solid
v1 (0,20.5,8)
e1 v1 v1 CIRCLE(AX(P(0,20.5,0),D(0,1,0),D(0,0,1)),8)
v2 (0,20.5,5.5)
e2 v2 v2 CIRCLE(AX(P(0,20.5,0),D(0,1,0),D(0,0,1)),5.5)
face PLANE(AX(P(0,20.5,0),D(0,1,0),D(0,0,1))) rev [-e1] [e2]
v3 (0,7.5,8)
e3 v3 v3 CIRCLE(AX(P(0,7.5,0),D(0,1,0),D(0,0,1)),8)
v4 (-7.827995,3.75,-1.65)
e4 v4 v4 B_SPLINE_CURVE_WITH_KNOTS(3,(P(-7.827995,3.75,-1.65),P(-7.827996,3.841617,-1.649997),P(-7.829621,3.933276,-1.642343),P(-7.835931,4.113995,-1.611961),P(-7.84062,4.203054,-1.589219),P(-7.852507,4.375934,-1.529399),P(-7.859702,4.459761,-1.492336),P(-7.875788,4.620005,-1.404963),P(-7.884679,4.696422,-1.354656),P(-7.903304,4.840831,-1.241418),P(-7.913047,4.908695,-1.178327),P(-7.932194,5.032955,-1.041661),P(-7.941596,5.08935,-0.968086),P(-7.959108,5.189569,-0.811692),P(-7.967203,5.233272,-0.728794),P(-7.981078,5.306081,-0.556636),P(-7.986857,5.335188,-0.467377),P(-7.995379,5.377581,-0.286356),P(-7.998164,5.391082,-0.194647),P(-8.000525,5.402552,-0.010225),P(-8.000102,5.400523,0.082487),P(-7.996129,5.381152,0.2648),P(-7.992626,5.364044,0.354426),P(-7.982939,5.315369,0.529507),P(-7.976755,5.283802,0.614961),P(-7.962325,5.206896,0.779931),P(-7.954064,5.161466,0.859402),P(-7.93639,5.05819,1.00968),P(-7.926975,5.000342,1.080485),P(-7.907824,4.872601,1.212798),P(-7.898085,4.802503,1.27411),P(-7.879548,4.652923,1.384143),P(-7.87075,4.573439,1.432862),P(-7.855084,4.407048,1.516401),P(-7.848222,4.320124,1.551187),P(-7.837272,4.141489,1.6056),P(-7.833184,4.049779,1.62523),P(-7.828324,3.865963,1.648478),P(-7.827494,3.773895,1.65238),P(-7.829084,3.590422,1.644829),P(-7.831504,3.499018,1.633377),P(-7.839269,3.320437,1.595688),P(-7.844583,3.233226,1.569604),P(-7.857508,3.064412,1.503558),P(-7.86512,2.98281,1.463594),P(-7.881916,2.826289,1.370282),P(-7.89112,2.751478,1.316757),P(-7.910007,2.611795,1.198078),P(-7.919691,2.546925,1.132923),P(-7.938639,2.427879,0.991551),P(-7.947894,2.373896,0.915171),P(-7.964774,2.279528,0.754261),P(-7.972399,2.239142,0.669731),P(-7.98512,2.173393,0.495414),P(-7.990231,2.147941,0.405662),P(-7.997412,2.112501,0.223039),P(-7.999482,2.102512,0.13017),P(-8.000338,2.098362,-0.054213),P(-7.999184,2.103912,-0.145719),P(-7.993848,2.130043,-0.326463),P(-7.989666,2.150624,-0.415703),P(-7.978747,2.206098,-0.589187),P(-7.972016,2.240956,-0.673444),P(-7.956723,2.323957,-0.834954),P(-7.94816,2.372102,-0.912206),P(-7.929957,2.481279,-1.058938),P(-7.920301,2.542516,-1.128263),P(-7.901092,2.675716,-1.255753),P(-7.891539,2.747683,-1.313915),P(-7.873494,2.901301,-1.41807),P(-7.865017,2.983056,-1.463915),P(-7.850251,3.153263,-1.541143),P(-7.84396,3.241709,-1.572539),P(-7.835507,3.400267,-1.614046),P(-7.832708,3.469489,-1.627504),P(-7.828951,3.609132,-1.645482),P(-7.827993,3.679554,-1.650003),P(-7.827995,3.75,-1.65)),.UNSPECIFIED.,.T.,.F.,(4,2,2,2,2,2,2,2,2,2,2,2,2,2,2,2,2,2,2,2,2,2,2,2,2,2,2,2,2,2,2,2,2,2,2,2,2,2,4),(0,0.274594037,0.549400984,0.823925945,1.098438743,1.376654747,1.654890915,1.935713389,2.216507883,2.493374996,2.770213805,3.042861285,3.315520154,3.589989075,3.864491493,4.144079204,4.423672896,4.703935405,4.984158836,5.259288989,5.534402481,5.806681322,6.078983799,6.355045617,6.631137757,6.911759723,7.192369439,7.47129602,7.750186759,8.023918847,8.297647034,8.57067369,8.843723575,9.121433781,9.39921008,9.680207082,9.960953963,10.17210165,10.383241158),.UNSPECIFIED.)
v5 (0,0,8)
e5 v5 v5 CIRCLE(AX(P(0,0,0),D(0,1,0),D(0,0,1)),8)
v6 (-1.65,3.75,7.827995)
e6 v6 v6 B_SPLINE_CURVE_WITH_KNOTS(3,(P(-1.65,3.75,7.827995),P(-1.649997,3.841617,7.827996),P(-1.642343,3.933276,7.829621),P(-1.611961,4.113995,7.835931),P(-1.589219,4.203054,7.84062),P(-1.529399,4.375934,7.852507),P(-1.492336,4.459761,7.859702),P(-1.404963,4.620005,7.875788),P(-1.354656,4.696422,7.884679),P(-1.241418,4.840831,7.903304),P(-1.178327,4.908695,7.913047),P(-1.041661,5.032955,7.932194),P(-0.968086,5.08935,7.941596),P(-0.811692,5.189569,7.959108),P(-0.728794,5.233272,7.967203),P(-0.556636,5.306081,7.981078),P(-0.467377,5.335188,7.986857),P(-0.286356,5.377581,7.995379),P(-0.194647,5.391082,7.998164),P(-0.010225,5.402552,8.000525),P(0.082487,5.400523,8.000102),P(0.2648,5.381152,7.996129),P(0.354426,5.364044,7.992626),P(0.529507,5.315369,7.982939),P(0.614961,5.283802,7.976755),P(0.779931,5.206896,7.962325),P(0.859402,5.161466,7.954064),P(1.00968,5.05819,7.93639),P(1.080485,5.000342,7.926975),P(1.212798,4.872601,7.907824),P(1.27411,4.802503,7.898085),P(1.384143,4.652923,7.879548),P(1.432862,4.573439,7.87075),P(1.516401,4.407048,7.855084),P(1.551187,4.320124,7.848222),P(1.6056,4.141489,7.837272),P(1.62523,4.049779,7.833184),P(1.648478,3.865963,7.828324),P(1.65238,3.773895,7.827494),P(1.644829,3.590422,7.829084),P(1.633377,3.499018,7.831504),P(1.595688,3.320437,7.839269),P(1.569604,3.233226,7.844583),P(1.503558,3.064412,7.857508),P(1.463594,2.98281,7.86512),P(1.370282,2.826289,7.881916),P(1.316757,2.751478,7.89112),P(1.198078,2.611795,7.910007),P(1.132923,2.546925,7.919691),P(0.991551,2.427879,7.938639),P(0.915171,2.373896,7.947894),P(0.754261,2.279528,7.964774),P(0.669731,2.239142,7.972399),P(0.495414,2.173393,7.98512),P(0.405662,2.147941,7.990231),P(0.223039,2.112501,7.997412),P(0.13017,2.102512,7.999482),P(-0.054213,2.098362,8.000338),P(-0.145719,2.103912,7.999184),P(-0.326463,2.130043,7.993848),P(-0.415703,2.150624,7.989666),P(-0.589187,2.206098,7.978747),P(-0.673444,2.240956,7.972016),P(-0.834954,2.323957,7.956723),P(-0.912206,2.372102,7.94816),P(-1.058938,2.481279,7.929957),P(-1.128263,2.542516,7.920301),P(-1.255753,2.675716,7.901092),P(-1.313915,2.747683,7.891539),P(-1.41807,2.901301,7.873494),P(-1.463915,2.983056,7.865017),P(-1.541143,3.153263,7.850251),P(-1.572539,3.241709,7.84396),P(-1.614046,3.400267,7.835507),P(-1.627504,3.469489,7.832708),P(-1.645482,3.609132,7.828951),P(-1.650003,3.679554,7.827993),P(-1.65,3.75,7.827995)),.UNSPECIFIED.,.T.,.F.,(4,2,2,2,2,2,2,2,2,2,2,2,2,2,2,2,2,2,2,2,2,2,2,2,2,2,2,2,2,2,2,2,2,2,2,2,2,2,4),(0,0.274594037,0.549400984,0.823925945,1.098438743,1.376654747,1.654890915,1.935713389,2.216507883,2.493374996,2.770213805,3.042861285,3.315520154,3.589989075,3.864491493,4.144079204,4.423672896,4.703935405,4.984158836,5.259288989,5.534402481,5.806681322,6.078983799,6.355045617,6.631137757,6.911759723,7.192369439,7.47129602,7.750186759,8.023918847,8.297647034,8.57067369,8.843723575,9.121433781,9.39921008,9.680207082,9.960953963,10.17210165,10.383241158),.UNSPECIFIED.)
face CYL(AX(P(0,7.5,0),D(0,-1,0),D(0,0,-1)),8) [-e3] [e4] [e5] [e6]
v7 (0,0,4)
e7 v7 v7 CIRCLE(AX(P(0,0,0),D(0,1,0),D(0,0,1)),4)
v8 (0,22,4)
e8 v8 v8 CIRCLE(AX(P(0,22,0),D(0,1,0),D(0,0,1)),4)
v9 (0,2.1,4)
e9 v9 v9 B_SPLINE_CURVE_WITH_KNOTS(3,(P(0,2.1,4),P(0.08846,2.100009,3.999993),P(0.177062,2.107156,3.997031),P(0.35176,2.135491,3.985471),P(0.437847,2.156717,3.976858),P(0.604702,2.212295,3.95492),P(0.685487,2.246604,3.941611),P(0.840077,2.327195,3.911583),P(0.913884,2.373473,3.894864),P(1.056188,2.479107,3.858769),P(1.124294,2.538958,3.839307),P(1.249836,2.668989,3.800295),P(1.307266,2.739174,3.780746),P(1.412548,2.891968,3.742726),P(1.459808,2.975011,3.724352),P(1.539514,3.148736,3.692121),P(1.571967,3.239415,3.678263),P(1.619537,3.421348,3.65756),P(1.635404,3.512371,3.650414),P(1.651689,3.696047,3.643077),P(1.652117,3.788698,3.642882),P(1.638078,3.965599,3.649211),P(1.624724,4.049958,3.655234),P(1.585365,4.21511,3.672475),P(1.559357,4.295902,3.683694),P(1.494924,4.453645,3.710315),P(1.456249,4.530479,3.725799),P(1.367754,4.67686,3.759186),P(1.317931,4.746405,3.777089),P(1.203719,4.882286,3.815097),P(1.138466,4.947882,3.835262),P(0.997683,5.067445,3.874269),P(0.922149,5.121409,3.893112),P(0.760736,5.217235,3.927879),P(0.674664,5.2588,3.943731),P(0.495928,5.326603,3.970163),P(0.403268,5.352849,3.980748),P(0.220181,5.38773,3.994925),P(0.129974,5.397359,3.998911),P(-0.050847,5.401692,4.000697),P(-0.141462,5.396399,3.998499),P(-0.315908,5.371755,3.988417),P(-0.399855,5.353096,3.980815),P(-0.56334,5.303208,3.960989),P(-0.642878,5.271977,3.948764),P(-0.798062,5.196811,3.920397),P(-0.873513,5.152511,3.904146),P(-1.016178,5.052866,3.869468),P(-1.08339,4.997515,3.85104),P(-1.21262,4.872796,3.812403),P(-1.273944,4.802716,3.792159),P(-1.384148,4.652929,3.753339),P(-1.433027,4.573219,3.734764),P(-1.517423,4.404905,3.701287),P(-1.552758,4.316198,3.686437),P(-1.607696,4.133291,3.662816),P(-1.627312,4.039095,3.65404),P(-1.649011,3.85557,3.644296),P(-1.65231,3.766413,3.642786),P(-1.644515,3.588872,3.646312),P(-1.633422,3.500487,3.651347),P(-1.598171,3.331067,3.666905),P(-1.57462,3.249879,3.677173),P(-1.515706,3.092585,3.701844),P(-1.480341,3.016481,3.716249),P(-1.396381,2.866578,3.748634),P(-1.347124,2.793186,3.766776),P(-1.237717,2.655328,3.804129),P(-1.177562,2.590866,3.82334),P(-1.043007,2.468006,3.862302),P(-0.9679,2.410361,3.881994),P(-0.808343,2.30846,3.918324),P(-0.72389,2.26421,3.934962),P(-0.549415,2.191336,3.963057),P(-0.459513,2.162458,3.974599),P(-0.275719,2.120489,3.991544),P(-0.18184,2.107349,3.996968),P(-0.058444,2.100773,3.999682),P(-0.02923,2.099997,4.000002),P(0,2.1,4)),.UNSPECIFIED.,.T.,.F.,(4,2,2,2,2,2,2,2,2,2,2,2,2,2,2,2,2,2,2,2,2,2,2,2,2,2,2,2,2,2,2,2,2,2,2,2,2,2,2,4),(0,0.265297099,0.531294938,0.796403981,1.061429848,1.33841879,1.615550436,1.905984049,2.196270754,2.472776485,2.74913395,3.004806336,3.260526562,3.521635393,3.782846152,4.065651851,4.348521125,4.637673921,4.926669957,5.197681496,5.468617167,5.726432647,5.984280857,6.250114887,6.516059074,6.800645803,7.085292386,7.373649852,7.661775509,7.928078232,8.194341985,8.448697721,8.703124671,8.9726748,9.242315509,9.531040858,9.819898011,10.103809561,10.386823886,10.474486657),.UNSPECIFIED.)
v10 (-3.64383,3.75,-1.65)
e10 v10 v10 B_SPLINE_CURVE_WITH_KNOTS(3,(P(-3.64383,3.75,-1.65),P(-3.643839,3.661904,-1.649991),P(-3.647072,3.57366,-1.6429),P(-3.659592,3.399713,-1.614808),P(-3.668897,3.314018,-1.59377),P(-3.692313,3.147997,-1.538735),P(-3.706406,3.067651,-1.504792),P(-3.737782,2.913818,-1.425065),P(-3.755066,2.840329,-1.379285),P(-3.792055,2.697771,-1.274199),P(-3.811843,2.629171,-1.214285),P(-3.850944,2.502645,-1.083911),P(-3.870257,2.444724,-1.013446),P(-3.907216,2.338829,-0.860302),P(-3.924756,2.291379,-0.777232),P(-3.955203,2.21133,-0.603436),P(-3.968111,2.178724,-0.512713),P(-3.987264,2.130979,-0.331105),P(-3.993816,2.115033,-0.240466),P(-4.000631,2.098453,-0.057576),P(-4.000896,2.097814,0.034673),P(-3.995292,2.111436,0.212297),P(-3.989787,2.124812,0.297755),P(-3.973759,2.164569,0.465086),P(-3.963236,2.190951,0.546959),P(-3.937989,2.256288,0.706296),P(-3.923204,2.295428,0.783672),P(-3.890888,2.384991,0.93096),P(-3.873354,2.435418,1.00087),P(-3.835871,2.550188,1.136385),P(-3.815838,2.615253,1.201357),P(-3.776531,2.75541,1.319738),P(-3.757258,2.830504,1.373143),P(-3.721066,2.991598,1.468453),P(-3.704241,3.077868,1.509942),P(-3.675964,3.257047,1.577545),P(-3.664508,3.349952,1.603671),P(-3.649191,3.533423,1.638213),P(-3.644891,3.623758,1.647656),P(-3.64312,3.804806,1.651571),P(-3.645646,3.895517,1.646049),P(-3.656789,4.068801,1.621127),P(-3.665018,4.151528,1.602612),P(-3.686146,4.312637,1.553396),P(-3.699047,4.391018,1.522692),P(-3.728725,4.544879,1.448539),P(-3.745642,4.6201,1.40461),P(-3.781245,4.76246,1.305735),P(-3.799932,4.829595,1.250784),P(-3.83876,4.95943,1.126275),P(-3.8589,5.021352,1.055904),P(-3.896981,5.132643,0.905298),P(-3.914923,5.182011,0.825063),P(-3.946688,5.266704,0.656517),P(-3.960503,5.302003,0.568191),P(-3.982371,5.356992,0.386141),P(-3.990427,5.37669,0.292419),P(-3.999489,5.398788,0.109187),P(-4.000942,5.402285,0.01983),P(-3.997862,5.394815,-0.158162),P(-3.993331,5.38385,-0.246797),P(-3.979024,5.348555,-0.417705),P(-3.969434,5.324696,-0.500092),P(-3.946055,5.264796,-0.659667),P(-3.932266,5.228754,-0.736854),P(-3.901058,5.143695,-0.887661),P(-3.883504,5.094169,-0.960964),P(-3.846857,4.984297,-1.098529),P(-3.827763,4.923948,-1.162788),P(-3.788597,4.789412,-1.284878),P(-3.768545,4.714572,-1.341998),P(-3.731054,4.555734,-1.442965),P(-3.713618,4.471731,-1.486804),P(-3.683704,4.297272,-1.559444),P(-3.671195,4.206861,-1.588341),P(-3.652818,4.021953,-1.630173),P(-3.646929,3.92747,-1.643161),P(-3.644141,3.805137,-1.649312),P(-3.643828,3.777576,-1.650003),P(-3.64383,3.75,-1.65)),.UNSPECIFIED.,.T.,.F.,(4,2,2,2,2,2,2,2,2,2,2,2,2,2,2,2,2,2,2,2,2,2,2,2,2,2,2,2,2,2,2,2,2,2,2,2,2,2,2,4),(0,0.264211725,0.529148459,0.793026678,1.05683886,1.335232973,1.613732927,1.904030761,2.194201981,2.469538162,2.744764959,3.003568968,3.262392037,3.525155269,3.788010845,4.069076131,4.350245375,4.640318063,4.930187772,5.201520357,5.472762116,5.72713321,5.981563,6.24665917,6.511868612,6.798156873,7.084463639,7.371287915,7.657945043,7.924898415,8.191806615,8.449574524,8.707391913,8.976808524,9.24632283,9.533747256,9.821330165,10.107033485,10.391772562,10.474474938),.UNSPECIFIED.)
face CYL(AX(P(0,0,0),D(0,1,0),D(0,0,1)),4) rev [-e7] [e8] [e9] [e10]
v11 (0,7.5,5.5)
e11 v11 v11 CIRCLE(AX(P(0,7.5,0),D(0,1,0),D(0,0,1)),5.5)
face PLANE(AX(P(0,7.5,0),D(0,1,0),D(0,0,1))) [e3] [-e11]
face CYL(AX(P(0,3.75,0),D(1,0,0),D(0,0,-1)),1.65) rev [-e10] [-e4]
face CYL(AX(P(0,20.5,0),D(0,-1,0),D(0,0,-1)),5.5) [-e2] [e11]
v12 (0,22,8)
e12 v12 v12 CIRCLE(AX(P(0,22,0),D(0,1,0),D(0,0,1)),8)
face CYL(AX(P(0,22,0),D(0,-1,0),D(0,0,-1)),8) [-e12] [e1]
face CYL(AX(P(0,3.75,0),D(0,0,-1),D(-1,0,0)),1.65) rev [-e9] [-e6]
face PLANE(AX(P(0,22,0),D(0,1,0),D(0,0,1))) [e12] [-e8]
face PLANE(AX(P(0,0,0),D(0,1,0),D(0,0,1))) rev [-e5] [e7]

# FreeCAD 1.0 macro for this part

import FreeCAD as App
import Part
import Sketcher
from FreeCAD import Vector

doc = App.newDocument("Part")
body = doc.addObject("PartDesign::Body", "Body")

# Sketch on XZ plane
sketch1 = doc.addObject("Sketcher::SketchObject", "Sketch")
body.addObject(sketch1)
sketch1.AttachmentSupport = (doc.XZ_Plane, [""])
sketch1.MapMode = "FlatFace"
sketch1.addGeometry(Part.Circle(Vector(0, 0, 0), Vector(0, 0, 1), 8), False)
sketch1.addConstraint([
    Sketcher.Constraint("Coincident", 0, 3, -1, 1),
    Sketcher.Constraint("Diameter", 0, 16.0),
])
pad1 = doc.addObject("PartDesign::Pad", "Pad")
body.addObject(pad1)
pad1.Profile = sketch1
pad1.Length = 7.5
pad1.Reversed = True

# Sketch on XZ plane
sketch2 = doc.addObject("Sketcher::SketchObject", "Sketch001")
body.addObject(sketch2)
sketch2.AttachmentSupport = (doc.XZ_Plane, [""])
sketch2.MapMode = "FlatFace"
sketch2.AttachmentOffset = App.Placement(Vector(0, 0, -7.5), App.Rotation())
sketch2.addGeometry(Part.Circle(Vector(0, 0, 0), Vector(0, 0, 1), 6), False)
sketch2.addConstraint([
    Sketcher.Constraint("Coincident", 0, 3, -1, 1),
    Sketcher.Constraint("Diameter", 0, 11.0),
])
pad2 = doc.addObject("PartDesign::Pad", "Pad001")
body.addObject(pad2)
pad2.Profile = sketch2
pad2.Length = 13
pad2.Reversed = True

# Sketch on XZ plane
sketch3 = doc.addObject("Sketcher::SketchObject", "Sketch002")
body.addObject(sketch3)
sketch3.AttachmentSupport = (doc.XZ_Plane, [""])
sketch3.MapMode = "FlatFace"
sketch3.AttachmentOffset = App.Placement(Vector(0, 0, -20.5), App.Rotation())
sketch3.addGeometry(Part.Circle(Vector(0, 0, 0), Vector(0, 0, 1), 8), False)
sketch3.addConstraint([
    Sketcher.Constraint("Coincident", 0, 3, -1, 1),
    Sketcher.Constraint("Diameter", 0, 16.0),
])
pad3 = doc.addObject("PartDesign::Pad", "Pad002")
body.addObject(pad3)
pad3.Profile = sketch3
pad3.Length = 1.5
pad3.Reversed = True

# Sketch on XZ plane
sketch4 = doc.addObject("Sketcher::SketchObject", "Sketch003")
body.addObject(sketch4)
sketch4.AttachmentSupport = (doc.XZ_Plane, [""])
sketch4.MapMode = "FlatFace"
sketch4.AttachmentOffset = App.Placement(Vector(0, 0, -22), App.Rotation())
sketch4.addGeometry(Part.Circle(Vector(0, 0, 0), Vector(0, 0, 1), 4), False)
sketch4.addConstraint([
    Sketcher.Constraint("Coincident", 0, 3, -1, 1),
    Sketcher.Constraint("Diameter", 0, 8.0),
])
pocket1 = doc.addObject("PartDesign::Pocket", "Pocket")
body.addObject(pocket1)
pocket1.Profile = sketch4
pocket1.Type = "ThroughAll"
pocket1.Reversed = True

# Sketch on YZ plane
sketch5 = doc.addObject("Sketcher::SketchObject", "Sketch004")
body.addObject(sketch5)
sketch5.AttachmentSupport = (doc.YZ_Plane, [""])
sketch5.MapMode = "FlatFace"
sketch5.addGeometry([
    Part.LineSegment(Vector(3.8, 8, 0), Vector(3.8, 0, 0)),
    Part.LineSegment(Vector(3.8, 0, 0), Vector(5.4, 0, 0)),
    Part.LineSegment(Vector(5.4, 0, 0), Vector(5.4, 8, 0)),
    Part.LineSegment(Vector(5.4, 8, 0), Vector(3.8, 8, 0)),
], False)
sketch5.addGeometry(Part.LineSegment(Vector(3.8, 0, 0), Vector(3.8, 8, 0)), True)  # axis
sketch5.addConstraint([
    Sketcher.Constraint("Coincident", 0, 2, 1, 1),
    Sketcher.Constraint("Coincident", 1, 2, 2, 1),
    Sketcher.Constraint("Coincident", 2, 2, 3, 1),
    Sketcher.Constraint("Coincident", 3, 2, 0, 1),
    Sketcher.Constraint("Vertical", 0),
    Sketcher.Constraint("Horizontal", 1),
    Sketcher.Constraint("Vertical", 2),
    Sketcher.Constraint("Horizontal", 3),
    Sketcher.Constraint("Vertical", 4),
    Sketcher.Constraint("Coincident", 4, 1, 0, 2),
    Sketcher.Constraint("PointOnObject", 0, 2, -1),
    Sketcher.Constraint("Horizontal", 2, 2, 4, 2),
    Sketcher.Constraint("DistanceX", 1, 1, 1, 2, 1.65),
    Sketcher.Constraint("DistanceX", -1, 1, 1, 2, 5.4),
    Sketcher.Constraint("DistanceY", 0, 2, 0, 1, 8.001),
])
groove = doc.addObject("PartDesign::Groove", "Groove")
body.addObject(groove)
groove.Profile = sketch5
groove.ReferenceAxis = (sketch5, ["Axis0"])
groove.Angle = 360
doc.recompute()

polarpattern = doc.addObject("PartDesign::PolarPattern", "PolarPattern")
body.addObject(polarpattern)
polarpattern.Originals = [groove]
polarpattern.Axis = (doc.Y_Axis, [""])
polarpattern.Angle = 90
polarpattern.Occurrences = 2
polarpattern.Reversed = True
body.Tip = polarpattern

doc.recompute()
